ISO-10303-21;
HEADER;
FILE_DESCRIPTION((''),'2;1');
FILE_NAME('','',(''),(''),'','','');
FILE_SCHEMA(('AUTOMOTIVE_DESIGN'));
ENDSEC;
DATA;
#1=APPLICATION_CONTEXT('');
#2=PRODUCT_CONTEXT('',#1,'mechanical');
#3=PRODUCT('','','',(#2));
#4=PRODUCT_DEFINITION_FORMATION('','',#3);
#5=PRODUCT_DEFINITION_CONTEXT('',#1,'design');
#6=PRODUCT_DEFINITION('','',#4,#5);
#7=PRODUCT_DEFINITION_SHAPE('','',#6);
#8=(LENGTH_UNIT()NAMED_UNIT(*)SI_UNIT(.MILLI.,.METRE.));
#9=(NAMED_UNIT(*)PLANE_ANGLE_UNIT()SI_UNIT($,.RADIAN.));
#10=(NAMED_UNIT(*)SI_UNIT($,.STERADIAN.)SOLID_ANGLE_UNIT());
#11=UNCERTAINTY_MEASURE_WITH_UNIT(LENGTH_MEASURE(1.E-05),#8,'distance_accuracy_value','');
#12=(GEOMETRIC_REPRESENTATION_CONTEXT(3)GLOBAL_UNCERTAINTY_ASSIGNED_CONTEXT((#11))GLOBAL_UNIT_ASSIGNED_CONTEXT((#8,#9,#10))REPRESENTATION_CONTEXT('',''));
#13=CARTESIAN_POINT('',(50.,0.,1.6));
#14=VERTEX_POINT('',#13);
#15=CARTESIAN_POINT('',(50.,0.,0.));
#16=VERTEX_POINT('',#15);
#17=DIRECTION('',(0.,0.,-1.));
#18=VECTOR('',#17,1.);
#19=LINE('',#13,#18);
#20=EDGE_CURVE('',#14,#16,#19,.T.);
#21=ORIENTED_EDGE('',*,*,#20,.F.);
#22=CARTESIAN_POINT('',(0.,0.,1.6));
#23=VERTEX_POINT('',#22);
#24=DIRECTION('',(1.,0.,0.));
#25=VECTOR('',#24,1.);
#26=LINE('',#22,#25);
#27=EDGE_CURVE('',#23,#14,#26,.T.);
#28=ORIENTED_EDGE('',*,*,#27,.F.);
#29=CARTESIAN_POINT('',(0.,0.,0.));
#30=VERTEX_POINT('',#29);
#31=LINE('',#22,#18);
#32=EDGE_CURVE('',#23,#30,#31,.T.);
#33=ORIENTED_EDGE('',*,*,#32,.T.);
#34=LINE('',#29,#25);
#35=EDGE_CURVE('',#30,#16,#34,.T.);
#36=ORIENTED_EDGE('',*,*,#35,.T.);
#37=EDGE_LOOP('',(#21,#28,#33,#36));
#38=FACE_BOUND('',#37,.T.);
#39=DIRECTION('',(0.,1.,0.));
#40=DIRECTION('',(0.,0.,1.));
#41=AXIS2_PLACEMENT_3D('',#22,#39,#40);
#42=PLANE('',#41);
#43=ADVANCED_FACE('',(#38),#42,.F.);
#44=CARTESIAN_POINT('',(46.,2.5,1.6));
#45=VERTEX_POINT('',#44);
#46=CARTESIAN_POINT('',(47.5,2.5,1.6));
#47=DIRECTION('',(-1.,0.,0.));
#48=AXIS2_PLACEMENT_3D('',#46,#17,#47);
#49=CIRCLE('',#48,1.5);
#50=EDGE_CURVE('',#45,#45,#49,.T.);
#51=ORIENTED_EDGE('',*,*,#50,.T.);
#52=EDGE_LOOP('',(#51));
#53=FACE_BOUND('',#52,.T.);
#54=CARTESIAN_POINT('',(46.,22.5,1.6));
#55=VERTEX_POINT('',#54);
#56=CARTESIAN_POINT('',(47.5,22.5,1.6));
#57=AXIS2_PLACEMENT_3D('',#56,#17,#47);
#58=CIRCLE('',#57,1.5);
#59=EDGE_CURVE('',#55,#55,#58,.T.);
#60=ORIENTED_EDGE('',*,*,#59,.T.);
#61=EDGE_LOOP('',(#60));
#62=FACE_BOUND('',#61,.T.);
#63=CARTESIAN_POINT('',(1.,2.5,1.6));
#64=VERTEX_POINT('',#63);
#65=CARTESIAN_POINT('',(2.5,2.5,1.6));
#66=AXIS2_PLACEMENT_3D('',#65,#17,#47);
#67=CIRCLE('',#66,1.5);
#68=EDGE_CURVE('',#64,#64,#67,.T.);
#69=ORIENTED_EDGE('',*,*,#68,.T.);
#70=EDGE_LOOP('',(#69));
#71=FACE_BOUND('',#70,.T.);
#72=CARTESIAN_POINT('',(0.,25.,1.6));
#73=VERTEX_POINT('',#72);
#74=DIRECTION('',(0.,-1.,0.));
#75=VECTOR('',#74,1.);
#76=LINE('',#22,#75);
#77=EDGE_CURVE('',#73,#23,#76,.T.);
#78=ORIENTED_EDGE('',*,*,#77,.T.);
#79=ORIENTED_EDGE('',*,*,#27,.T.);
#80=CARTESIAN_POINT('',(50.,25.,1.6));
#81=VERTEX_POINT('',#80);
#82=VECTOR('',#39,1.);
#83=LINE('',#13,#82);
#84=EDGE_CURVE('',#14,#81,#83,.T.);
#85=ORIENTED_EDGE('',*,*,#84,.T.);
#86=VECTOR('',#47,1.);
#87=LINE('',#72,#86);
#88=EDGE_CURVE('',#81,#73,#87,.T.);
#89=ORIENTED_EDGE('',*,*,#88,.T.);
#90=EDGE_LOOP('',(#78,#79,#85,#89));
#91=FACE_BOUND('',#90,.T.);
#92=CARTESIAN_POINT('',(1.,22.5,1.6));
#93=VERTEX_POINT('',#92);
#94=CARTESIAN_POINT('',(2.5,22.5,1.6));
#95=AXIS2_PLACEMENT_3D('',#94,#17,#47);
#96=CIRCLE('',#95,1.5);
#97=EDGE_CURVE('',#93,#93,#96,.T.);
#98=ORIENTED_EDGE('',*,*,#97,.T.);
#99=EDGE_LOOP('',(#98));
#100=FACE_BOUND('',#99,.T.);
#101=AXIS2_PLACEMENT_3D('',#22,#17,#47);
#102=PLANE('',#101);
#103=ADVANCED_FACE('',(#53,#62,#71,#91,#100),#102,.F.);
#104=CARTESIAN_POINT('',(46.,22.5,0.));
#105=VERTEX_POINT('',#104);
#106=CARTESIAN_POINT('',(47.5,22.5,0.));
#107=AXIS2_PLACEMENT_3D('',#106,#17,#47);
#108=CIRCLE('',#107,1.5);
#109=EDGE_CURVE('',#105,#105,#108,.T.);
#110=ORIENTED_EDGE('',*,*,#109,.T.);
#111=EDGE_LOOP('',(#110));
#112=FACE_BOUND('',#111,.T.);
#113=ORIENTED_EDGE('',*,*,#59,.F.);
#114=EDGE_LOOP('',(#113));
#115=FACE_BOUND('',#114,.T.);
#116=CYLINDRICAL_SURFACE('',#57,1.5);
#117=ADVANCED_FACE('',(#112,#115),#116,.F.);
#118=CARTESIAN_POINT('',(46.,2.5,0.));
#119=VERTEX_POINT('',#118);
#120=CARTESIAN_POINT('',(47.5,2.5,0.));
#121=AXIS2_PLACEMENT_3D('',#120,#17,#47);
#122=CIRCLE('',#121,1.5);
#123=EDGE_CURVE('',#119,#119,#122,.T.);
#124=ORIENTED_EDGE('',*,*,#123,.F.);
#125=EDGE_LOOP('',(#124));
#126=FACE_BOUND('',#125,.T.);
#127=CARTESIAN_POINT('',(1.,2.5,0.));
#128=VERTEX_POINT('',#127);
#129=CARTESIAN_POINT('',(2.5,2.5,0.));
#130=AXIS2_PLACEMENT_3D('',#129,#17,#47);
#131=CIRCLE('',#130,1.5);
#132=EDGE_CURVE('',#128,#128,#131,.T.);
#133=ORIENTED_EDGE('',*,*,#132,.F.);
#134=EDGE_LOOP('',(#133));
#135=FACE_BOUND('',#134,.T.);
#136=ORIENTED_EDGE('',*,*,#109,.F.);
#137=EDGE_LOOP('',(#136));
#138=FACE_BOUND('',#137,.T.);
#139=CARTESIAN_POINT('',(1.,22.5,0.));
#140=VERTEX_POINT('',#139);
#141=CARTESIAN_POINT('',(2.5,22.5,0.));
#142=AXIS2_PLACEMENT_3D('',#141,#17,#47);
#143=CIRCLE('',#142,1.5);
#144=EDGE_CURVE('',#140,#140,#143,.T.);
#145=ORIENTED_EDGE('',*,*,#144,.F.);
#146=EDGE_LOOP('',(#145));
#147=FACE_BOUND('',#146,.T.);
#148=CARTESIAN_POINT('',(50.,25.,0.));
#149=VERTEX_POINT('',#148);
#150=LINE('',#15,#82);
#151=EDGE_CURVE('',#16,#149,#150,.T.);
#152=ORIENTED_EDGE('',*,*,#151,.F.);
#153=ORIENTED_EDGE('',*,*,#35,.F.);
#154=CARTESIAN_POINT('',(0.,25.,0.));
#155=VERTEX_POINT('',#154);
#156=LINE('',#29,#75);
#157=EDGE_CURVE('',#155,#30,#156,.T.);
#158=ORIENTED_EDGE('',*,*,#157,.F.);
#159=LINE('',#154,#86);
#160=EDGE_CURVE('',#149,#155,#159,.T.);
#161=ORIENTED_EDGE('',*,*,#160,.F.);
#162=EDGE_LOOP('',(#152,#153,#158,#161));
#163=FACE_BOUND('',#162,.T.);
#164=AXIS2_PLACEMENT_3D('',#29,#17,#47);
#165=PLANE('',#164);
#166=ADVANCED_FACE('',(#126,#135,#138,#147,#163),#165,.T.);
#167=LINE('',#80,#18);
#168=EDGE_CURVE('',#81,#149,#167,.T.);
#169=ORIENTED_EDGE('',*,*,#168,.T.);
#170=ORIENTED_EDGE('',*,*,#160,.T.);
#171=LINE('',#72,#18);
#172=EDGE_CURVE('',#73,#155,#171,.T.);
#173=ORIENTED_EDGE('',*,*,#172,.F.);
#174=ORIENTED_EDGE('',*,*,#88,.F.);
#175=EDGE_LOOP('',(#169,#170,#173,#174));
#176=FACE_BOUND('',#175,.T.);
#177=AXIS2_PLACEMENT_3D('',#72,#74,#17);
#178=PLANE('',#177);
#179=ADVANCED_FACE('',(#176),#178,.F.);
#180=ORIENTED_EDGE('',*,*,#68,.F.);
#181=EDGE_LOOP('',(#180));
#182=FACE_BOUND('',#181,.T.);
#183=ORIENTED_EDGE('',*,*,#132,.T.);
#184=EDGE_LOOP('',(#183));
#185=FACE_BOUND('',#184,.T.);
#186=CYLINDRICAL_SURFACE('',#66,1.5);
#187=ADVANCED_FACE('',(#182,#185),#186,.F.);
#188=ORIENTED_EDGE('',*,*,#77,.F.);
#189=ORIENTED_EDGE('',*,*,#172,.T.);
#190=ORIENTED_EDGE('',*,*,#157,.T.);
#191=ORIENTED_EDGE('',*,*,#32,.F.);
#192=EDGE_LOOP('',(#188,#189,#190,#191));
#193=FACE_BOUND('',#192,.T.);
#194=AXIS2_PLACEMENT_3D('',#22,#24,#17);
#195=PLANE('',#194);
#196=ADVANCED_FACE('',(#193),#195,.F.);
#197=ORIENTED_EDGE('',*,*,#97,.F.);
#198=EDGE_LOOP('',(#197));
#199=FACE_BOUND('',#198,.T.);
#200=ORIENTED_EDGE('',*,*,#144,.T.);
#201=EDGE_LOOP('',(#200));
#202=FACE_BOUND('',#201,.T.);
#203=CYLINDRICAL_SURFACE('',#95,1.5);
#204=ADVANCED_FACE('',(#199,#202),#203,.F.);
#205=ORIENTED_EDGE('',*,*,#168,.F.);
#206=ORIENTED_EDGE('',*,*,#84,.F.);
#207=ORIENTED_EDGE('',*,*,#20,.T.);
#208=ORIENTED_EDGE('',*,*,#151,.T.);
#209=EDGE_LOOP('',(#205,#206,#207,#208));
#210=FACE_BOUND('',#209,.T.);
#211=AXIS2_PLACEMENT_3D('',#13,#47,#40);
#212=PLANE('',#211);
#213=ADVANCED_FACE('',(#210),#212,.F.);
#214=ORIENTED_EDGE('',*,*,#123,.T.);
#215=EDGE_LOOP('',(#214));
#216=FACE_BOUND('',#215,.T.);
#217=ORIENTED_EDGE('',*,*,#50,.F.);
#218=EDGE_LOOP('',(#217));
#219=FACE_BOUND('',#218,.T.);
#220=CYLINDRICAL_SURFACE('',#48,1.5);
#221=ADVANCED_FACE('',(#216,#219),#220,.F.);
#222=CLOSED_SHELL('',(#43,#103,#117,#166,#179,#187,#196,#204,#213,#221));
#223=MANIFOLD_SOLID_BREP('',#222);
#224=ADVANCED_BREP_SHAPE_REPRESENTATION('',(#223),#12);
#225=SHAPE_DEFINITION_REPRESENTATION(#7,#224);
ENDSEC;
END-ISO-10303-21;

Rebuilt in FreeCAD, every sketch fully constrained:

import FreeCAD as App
import Part
import Sketcher
from FreeCAD import Vector


def add_polygon(sketch, points):
    """Adds a closed chain of lines whose ends are joined by coincident constraints."""
    first, n = sketch.GeometryCount, len(points)
    for a, b in zip(points, points[1:] + points[:1]):
        sketch.addGeometry(Part.LineSegment(App.Vector(*a, 0), App.Vector(*b, 0)), False)
    for i in range(n):
        sketch.addConstraint(Sketcher.Constraint("Coincident", first + i, 2, first + (i + 1) % n, 1))

doc = App.newDocument("Part")
params = doc.addObject("Spreadsheet::Sheet", "Params")
for row, (alias, value) in enumerate([
    ("sketch1_width", "50 mm"),
    ("sketch1_height", "25 mm"),
    ("pad1_length", "1.6 mm"),
    ("sketch2_diameter", "3 mm"),
    ("pocket1_length", "1.6 mm"),
], start=1):
    params.set(f"A{row}", alias)
    params.set(f"B{row}", "=" + value)
    params.setAlias(f"B{row}", alias)

body = doc.addObject("PartDesign::Body", "Body")

sketch1 = body.newObject("Sketcher::SketchObject", "Sketch")
sketch1.AttachmentSupport = (doc.getObject("XY_Plane"), [""])
sketch1.MapMode = "FlatFace"
add_polygon(sketch1, [(0, 25), (0, 0), (50, 0), (50, 25)])
sketch1.addConstraint(Sketcher.Constraint("Vertical", 0))
sketch1.addConstraint(Sketcher.Constraint("Horizontal", 1))
sketch1.addConstraint(Sketcher.Constraint("Vertical", 2))
sketch1.addConstraint(Sketcher.Constraint("Horizontal", 3))
sketch1.addConstraint(Sketcher.Constraint("Coincident", 0, 2, -1, 1))
sketch1.addConstraint(Sketcher.Constraint("DistanceX", 1, 1, 1, 2, 50.0))
sketch1.addConstraint(Sketcher.Constraint("DistanceY", 0, 2, 0, 1, 25.0))
sketch1.setExpression("Constraints[9]", "Params.sketch1_width")
sketch1.setExpression("Constraints[10]", "Params.sketch1_height")
pad1 = body.newObject("PartDesign::Pad", "Pad")
pad1.Profile = sketch1
pad1.setExpression("Length", "Params.pad1_length")

sketch2 = body.newObject("Sketcher::SketchObject", "Sketch001")
sketch2.AttachmentSupport = (doc.getObject("XY_Plane"), [""])
sketch2.MapMode = "FlatFace"
sketch2.addGeometry(Part.Circle(Vector(2.5, 2.5, 0), Vector(0, 0, 1), 1.5), False)
sketch2.addGeometry(Part.Circle(Vector(47.5, 2.5, 0), Vector(0, 0, 1), 1.5), False)
sketch2.addGeometry(Part.Circle(Vector(47.5, 22.5, 0), Vector(0, 0, 1), 1.5), False)
sketch2.addGeometry(Part.Circle(Vector(2.5, 22.5, 0), Vector(0, 0, 1), 1.5), False)
sketch2.addConstraint(Sketcher.Constraint("Equal", 0, 1))
sketch2.addConstraint(Sketcher.Constraint("Equal", 1, 2))
sketch2.addConstraint(Sketcher.Constraint("Equal", 2, 3))
sketch2.addConstraint(Sketcher.Constraint("Horizontal", 0, 3, 1, 3))
sketch2.addConstraint(Sketcher.Constraint("Horizontal", 2, 3, 3, 3))
sketch2.addConstraint(Sketcher.Constraint("Vertical", 1, 3, 2, 3))
sketch2.addConstraint(Sketcher.Constraint("Vertical", 0, 3, 3, 3))
sketch2.addConstraint(Sketcher.Constraint("Diameter", 0, 3.0))
sketch2.addConstraint(Sketcher.Constraint("DistanceX", 0, 3, 1, 3, 45.0))
sketch2.addConstraint(Sketcher.Constraint("DistanceY", 1, 3, 2, 3, 20.0))
sketch2.addConstraint(Sketcher.Constraint("DistanceX", -1, 1, 0, 3, 2.5))
sketch2.addConstraint(Sketcher.Constraint("DistanceY", -1, 1, 0, 3, 2.5))
sketch2.setExpression("Constraints[7]", "Params.sketch2_diameter")
pocket1 = body.newObject("PartDesign::Pocket", "Pocket")
pocket1.Profile = sketch2
pocket1.setExpression("Length", "Params.pocket1_length")
pocket1.Reversed = True

doc.recompute()
